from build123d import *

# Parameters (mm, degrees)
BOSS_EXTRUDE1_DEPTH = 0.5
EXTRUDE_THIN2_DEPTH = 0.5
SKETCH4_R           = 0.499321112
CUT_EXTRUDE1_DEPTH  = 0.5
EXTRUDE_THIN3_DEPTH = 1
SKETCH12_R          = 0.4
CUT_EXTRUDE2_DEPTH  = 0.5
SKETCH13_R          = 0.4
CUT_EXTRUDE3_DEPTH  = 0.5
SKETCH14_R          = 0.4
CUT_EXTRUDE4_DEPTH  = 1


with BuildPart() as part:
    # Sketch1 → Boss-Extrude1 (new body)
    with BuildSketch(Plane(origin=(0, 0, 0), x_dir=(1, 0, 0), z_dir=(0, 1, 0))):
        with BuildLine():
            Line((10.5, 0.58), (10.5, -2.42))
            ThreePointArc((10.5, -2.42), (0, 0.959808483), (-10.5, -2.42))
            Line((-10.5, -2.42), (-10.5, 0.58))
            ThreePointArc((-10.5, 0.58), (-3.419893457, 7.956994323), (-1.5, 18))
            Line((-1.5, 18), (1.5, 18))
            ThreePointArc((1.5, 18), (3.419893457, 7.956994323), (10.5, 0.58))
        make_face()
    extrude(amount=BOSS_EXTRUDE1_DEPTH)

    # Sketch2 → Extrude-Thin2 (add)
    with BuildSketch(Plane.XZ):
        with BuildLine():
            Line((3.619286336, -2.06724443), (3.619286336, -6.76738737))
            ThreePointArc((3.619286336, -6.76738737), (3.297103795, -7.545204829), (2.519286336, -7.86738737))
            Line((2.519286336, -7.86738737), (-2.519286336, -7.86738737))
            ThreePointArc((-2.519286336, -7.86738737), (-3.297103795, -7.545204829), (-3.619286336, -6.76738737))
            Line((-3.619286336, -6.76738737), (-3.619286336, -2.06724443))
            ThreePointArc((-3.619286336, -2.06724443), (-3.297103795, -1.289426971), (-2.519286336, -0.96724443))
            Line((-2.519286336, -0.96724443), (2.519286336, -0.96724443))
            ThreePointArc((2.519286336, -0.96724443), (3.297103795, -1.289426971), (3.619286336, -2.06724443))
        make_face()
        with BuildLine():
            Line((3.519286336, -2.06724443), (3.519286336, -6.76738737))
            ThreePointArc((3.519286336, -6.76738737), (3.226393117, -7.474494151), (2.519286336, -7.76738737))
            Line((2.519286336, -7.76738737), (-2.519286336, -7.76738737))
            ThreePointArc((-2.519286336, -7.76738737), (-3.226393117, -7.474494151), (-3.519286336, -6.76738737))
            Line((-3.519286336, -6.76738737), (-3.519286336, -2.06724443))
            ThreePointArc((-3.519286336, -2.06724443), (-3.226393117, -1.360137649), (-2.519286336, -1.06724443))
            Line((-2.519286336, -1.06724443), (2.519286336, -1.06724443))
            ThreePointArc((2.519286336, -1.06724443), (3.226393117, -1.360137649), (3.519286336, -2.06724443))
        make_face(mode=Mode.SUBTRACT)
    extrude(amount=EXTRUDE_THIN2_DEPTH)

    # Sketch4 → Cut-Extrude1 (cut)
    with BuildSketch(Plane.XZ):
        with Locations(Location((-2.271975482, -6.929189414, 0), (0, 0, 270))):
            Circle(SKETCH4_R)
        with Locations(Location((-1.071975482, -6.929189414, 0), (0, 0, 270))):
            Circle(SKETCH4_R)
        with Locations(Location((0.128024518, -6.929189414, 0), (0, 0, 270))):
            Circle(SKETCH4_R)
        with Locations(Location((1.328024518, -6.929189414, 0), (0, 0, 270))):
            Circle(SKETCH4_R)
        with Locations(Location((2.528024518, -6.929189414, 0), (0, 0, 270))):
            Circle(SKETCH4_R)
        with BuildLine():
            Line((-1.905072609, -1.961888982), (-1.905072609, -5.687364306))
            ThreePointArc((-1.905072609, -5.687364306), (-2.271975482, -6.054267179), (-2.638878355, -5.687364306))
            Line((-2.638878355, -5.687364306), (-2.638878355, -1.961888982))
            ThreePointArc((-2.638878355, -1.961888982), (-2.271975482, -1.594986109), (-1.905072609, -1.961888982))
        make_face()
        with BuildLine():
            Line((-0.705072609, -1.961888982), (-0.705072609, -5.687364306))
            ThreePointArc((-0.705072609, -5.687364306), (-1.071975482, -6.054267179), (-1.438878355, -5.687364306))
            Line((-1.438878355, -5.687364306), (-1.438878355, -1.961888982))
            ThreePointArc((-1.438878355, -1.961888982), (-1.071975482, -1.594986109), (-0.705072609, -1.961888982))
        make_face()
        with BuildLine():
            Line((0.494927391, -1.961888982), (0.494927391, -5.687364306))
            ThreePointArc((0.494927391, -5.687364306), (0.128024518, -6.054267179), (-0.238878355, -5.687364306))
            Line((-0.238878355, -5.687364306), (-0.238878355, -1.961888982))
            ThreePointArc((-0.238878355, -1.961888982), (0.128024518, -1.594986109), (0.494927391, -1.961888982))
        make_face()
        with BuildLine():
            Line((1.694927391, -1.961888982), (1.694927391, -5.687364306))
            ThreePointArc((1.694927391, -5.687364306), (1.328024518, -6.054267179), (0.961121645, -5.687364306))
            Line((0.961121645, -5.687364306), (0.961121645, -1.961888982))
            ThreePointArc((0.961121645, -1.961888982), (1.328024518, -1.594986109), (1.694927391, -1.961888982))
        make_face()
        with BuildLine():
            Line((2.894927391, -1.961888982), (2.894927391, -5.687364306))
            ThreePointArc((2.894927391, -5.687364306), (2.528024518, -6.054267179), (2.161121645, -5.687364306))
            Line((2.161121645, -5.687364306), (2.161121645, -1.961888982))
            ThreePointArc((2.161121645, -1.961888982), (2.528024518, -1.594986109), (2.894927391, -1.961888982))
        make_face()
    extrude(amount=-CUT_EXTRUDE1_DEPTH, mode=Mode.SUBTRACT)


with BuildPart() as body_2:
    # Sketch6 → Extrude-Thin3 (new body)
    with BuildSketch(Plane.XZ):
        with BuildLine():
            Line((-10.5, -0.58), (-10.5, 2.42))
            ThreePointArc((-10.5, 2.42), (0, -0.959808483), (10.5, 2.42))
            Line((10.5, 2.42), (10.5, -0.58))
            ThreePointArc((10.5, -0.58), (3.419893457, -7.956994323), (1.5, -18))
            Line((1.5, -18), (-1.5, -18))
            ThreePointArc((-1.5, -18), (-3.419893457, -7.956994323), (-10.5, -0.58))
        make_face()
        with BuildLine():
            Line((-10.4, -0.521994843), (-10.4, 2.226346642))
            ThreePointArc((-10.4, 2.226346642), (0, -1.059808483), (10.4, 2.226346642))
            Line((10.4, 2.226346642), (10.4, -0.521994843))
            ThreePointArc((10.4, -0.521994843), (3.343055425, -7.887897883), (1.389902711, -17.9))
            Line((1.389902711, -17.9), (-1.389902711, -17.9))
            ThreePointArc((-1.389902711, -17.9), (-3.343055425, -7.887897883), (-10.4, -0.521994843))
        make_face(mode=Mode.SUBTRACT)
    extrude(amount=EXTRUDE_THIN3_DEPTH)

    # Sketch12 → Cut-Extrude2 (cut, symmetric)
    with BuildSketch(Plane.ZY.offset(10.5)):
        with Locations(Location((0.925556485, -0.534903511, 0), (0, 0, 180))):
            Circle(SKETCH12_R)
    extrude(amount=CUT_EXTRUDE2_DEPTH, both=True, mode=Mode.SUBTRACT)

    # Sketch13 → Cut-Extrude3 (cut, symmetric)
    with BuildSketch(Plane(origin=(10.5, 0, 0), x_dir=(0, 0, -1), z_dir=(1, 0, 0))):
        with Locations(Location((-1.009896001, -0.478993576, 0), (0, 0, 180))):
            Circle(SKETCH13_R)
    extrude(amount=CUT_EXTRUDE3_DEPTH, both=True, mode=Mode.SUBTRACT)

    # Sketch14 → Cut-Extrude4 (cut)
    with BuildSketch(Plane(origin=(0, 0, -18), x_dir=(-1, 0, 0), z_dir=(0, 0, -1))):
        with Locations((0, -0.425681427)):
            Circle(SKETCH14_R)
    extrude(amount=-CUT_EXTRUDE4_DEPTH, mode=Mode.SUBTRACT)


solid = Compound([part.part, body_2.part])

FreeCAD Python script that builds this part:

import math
import FreeCAD as App
import Part
import Sketcher

doc = App.newDocument("Part")
body = doc.addObject("PartDesign::Body", "Body")

# Sketch on XZ plane
sketch1 = body.newObject("Sketcher::SketchObject", "Sketch")
sketch1.AttachmentSupport = (doc.getObject("XZ_Plane"), [""])
sketch1.MapMode = "FlatFace"
sketch1.addGeometry([
    Part.LineSegment(App.Vector(10.5, 2.4, 0), App.Vector(10.5, -0.6, 0)),  # 0
    Part.ArcOfCircle(Part.Circle(App.Vector(19.4, -16.2, 0), App.Vector(0, 0, 1), 18), math.radians(120), math.radians(186)),  # 1
    Part.LineSegment(App.Vector(1.5, -18, 0), App.Vector(-1.5, -18, 0)),  # 2
    Part.ArcOfCircle(Part.Circle(App.Vector(-19.4, -16.2, 0), App.Vector(0, 0, 1), 18), math.radians(-6), math.radians(60)),  # 3
    Part.LineSegment(App.Vector(-10.5, -0.6, 0), App.Vector(-10.5, 2.4, 0)),  # 4
    Part.ArcOfCircle(Part.Circle(App.Vector(0, 17, 0), App.Vector(0, 0, 1), 18), math.radians(-126), math.radians(-54)),  # 5
], False)
sketch1.addConstraint([
    Sketcher.Constraint("Coincident", 0, 2, 1, 1),
    Sketcher.Constraint("Coincident", 1, 2, 2, 1),
    Sketcher.Constraint("Coincident", 2, 2, 3, 1),
    Sketcher.Constraint("Coincident", 3, 2, 4, 1),
    Sketcher.Constraint("Coincident", 4, 2, 5, 1),
    Sketcher.Constraint("Coincident", 5, 2, 0, 1),
    Sketcher.Constraint("Vertical", 0),
    Sketcher.Constraint("Horizontal", 2),
    Sketcher.Constraint("Vertical", 4),
    Sketcher.Constraint("Equal", 1, 3),
    Sketcher.Constraint("Equal", 3, 5),
    Sketcher.Constraint("Symmetric", 1, 3, 3, 3, -2),
    Sketcher.Constraint("Symmetric", 4, 2, 5, 2, -2),
    Sketcher.Constraint("Equal", 2, 0),
    Sketcher.Constraint("Radius", 1, 18.0),
    Sketcher.Constraint("DistanceX", 2, 2, 2, 1, 3.0),
    Sketcher.Constraint("DistanceY", 1, 2, -1, 1, 18.0),
    Sketcher.Constraint("DistanceX", 1, 2, 0, 2, 9.0),
    Sketcher.Constraint("DistanceY", 0, 2, -1, 1, 0.58),
])
pad1 = body.newObject("PartDesign::Pad", "Pad")
pad1.Profile = sketch1
pad1.Length = 0.5
pad1.Reversed = True

# Sketch on XZ plane
sketch2 = body.newObject("Sketcher::SketchObject", "Sketch001")
sketch2.AttachmentSupport = (doc.getObject("XZ_Plane"), [""])
sketch2.MapMode = "FlatFace"
sketch2.addGeometry([
    Part.LineSegment(App.Vector(3.6, -6.8, 0), App.Vector(3.6, -2.1, 0)),  # 0
    Part.ArcOfCircle(Part.Circle(App.Vector(2.5, -2.1, 0), App.Vector(0, 0, 1), 1.1), math.radians(0), math.radians(90)),  # 1
    Part.LineSegment(App.Vector(2.5, -1, 0), App.Vector(-2.5, -1, 0)),  # 2
    Part.ArcOfCircle(Part.Circle(App.Vector(-2.5, -2.1, 0), App.Vector(0, 0, 1), 1.1), math.radians(90), math.radians(180)),  # 3
    Part.LineSegment(App.Vector(-3.6, -2.1, 0), App.Vector(-3.6, -6.8, 0)),  # 4
    Part.ArcOfCircle(Part.Circle(App.Vector(-2.5, -6.8, 0), App.Vector(0, 0, 1), 1.1), math.radians(-180), math.radians(-90)),  # 5
    Part.LineSegment(App.Vector(-2.5, -7.9, 0), App.Vector(2.5, -7.9, 0)),  # 6
    Part.ArcOfCircle(Part.Circle(App.Vector(2.5, -6.8, 0), App.Vector(0, 0, 1), 1.1), math.radians(-90), math.radians(0)),  # 7
    Part.LineSegment(App.Vector(3.5, -2.1, 0), App.Vector(3.5, -6.8, 0)),  # 8
    Part.ArcOfCircle(Part.Circle(App.Vector(2.5, -6.8, 0), App.Vector(0, 0, 1), 1), math.radians(-90), math.radians(0)),  # 9
    Part.LineSegment(App.Vector(2.5, -7.8, 0), App.Vector(-2.5, -7.8, 0)),  # 10
    Part.ArcOfCircle(Part.Circle(App.Vector(-2.5, -6.8, 0), App.Vector(0, 0, 1), 1), math.radians(-180), math.radians(-90)),  # 11
    Part.LineSegment(App.Vector(-3.5, -6.8, 0), App.Vector(-3.5, -2.1, 0)),  # 12
    Part.ArcOfCircle(Part.Circle(App.Vector(-2.5, -2.1, 0), App.Vector(0, 0, 1), 1), math.radians(90), math.radians(180)),  # 13
    Part.LineSegment(App.Vector(-2.5, -1.1, 0), App.Vector(2.5, -1.1, 0)),  # 14
    Part.ArcOfCircle(Part.Circle(App.Vector(2.5, -2.1, 0), App.Vector(0, 0, 1), 1), math.radians(0), math.radians(90)),  # 15
], False)
sketch2.addConstraint([
    Sketcher.Constraint("Tangent", 0, 2, 1, 1),
    Sketcher.Constraint("Tangent", 1, 2, 2, 1),
    Sketcher.Constraint("Tangent", 2, 2, 3, 1),
    Sketcher.Constraint("Tangent", 3, 2, 4, 1),
    Sketcher.Constraint("Tangent", 4, 2, 5, 1),
    Sketcher.Constraint("Tangent", 5, 2, 6, 1),
    Sketcher.Constraint("Tangent", 6, 2, 7, 1),
    Sketcher.Constraint("Tangent", 7, 2, 0, 1),
    Sketcher.Constraint("Tangent", 8, 2, 9, 2),
    Sketcher.Constraint("Tangent", 9, 1, 10, 1),
    Sketcher.Constraint("Tangent", 10, 2, 11, 2),
    Sketcher.Constraint("Tangent", 11, 1, 12, 1),
    Sketcher.Constraint("Tangent", 12, 2, 13, 2),
    Sketcher.Constraint("Tangent", 13, 1, 14, 1),
    Sketcher.Constraint("Tangent", 14, 2, 15, 2),
    Sketcher.Constraint("Tangent", 15, 1, 8, 1),
    Sketcher.Constraint("Vertical", 0),
    Sketcher.Constraint("Horizontal", 2),
    Sketcher.Constraint("Vertical", 4),
    Sketcher.Constraint("Horizontal", 6),
    Sketcher.Constraint("Vertical", 8),
    Sketcher.Constraint("Horizontal", 10),
    Sketcher.Constraint("Vertical", 12),
    Sketcher.Constraint("Horizontal", 14),
    Sketcher.Constraint("Coincident", 9, 3, 7, 3),
    Sketcher.Constraint("Coincident", 11, 3, 5, 3),
    Sketcher.Constraint("Coincident", 13, 3, 3, 3),
    Sketcher.Constraint("Equal", 1, 3),
    Sketcher.Constraint("Equal", 3, 5),
    Sketcher.Constraint("Equal", 5, 7),
    Sketcher.Constraint("Equal", 13, 15),
    Sketcher.Constraint("Radius", 9, 1.0),
    Sketcher.Constraint("Radius", 1, 1.1),
    Sketcher.Constraint("DistanceX", 2, 2, 2, 1, 5.038573),
    Sketcher.Constraint("DistanceY", 0, 1, 0, 2, 4.700143),
    Sketcher.Constraint("DistanceX", -1, 1, 1, 3, 2.519286),
    Sketcher.Constraint("DistanceY", 1, 3, -1, 1, 2.067244),
])
pad2 = body.newObject("PartDesign::Pad", "Pad001")
pad2.Profile = sketch2
pad2.Length = 0.5

# Sketch on XZ plane
sketch3 = body.newObject("Sketcher::SketchObject", "Sketch002")
sketch3.AttachmentSupport = (doc.getObject("XZ_Plane"), [""])
sketch3.MapMode = "FlatFace"
sketch3.addGeometry([
    Part.Circle(App.Vector(-2.27, -6.93, 0), App.Vector(0, 0, 1), 0.5),  # 0
    Part.Circle(App.Vector(-1.07, -6.93, 0), App.Vector(0, 0, 1), 0.5),  # 1
    Part.Circle(App.Vector(0.13, -6.93, 0), App.Vector(0, 0, 1), 0.5),  # 2
    Part.Circle(App.Vector(1.33, -6.93, 0), App.Vector(0, 0, 1), 0.5),  # 3
    Part.Circle(App.Vector(2.53, -6.93, 0), App.Vector(0, 0, 1), 0.5),  # 4
    Part.LineSegment(App.Vector(-1.91, -5.69, 0), App.Vector(-1.91, -1.96, 0)),  # 5
    Part.ArcOfCircle(Part.Circle(App.Vector(-2.27, -1.96, 0), App.Vector(0, 0, 1), 0.37), math.radians(0), math.radians(180)),  # 6
    Part.LineSegment(App.Vector(-2.64, -1.96, 0), App.Vector(-2.64, -5.69, 0)),  # 7
    Part.ArcOfCircle(Part.Circle(App.Vector(-2.27, -5.69, 0), App.Vector(0, 0, 1), 0.37), math.radians(180), math.radians(360)),  # 8
    Part.LineSegment(App.Vector(-0.71, -5.69, 0), App.Vector(-0.71, -1.96, 0)),  # 9
    Part.ArcOfCircle(Part.Circle(App.Vector(-1.07, -1.96, 0), App.Vector(0, 0, 1), 0.37), math.radians(0), math.radians(180)),  # 10
    Part.LineSegment(App.Vector(-1.44, -1.96, 0), App.Vector(-1.44, -5.69, 0)),  # 11
    Part.ArcOfCircle(Part.Circle(App.Vector(-1.07, -5.69, 0), App.Vector(0, 0, 1), 0.37), math.radians(180), math.radians(360)),  # 12
    Part.LineSegment(App.Vector(0.49, -5.69, 0), App.Vector(0.49, -1.96, 0)),  # 13
    Part.ArcOfCircle(Part.Circle(App.Vector(0.13, -1.96, 0), App.Vector(0, 0, 1), 0.37), math.radians(0), math.radians(180)),  # 14
    Part.LineSegment(App.Vector(-0.24, -1.96, 0), App.Vector(-0.24, -5.69, 0)),  # 15
    Part.ArcOfCircle(Part.Circle(App.Vector(0.13, -5.69, 0), App.Vector(0, 0, 1), 0.37), math.radians(180), math.radians(360)),  # 16
    Part.LineSegment(App.Vector(1.69, -5.69, 0), App.Vector(1.69, -1.96, 0)),  # 17
    Part.ArcOfCircle(Part.Circle(App.Vector(1.33, -1.96, 0), App.Vector(0, 0, 1), 0.37), math.radians(0), math.radians(180)),  # 18
    Part.LineSegment(App.Vector(0.96, -1.96, 0), App.Vector(0.96, -5.69, 0)),  # 19
    Part.ArcOfCircle(Part.Circle(App.Vector(1.33, -5.69, 0), App.Vector(0, 0, 1), 0.37), math.radians(180), math.radians(360)),  # 20
    Part.LineSegment(App.Vector(2.89, -5.69, 0), App.Vector(2.89, -1.96, 0)),  # 21
    Part.ArcOfCircle(Part.Circle(App.Vector(2.53, -1.96, 0), App.Vector(0, 0, 1), 0.37), math.radians(0), math.radians(180)),  # 22
    Part.LineSegment(App.Vector(2.16, -1.96, 0), App.Vector(2.16, -5.69, 0)),  # 23
    Part.ArcOfCircle(Part.Circle(App.Vector(2.53, -5.69, 0), App.Vector(0, 0, 1), 0.37), math.radians(180), math.radians(360)),  # 24
], False)
sketch3.addConstraint([
    Sketcher.Constraint("Tangent", 5, 2, 6, 1),
    Sketcher.Constraint("Tangent", 6, 2, 7, 1),
    Sketcher.Constraint("Tangent", 7, 2, 8, 1),
    Sketcher.Constraint("Tangent", 8, 2, 5, 1),
    Sketcher.Constraint("Tangent", 9, 2, 10, 1),
    Sketcher.Constraint("Tangent", 10, 2, 11, 1),
    Sketcher.Constraint("Tangent", 11, 2, 12, 1),
    Sketcher.Constraint("Tangent", 12, 2, 9, 1),
    Sketcher.Constraint("Tangent", 13, 2, 14, 1),
    Sketcher.Constraint("Tangent", 14, 2, 15, 1),
    Sketcher.Constraint("Tangent", 15, 2, 16, 1),
    Sketcher.Constraint("Tangent", 16, 2, 13, 1),
    Sketcher.Constraint("Tangent", 17, 2, 18, 1),
    Sketcher.Constraint("Tangent", 18, 2, 19, 1),
    Sketcher.Constraint("Tangent", 19, 2, 20, 1),
    Sketcher.Constraint("Tangent", 20, 2, 17, 1),
    Sketcher.Constraint("Tangent", 21, 2, 22, 1),
    Sketcher.Constraint("Tangent", 22, 2, 23, 1),
    Sketcher.Constraint("Tangent", 23, 2, 24, 1),
    Sketcher.Constraint("Tangent", 24, 2, 21, 1),
    Sketcher.Constraint("Vertical", 5),
    Sketcher.Constraint("Vertical", 7),
    Sketcher.Constraint("Vertical", 9),
    Sketcher.Constraint("Vertical", 11),
    Sketcher.Constraint("Vertical", 13),
    Sketcher.Constraint("Vertical", 15),
    Sketcher.Constraint("Vertical", 17),
    Sketcher.Constraint("Vertical", 19),
    Sketcher.Constraint("Vertical", 21),
    Sketcher.Constraint("Vertical", 23),
    Sketcher.Constraint("Equal", 0, 1),
    Sketcher.Constraint("Equal", 1, 2),
    Sketcher.Constraint("Equal", 2, 3),
    Sketcher.Constraint("Equal", 3, 4),
    Sketcher.Constraint("Equal", 8, 10),
    Sketcher.Constraint("Equal", 12, 14),
    Sketcher.Constraint("Equal", 16, 18),
    Sketcher.Constraint("Equal", 20, 22),
    Sketcher.Constraint("Horizontal", 0, 3, 1, 3),
    Sketcher.Constraint("Horizontal", 1, 3, 2, 3),
    Sketcher.Constraint("Horizontal", 2, 3, 3, 3),
    Sketcher.Constraint("Horizontal", 3, 3, 4, 3),
    Sketcher.Constraint("Horizontal", 6, 3, 10, 3),
    Sketcher.Constraint("Horizontal", 8, 3, 12, 3),
    Sketcher.Constraint("Horizontal", 10, 3, 14, 3),
    Sketcher.Constraint("Horizontal", 12, 3, 16, 3),
    Sketcher.Constraint("Horizontal", 14, 3, 18, 3),
    Sketcher.Constraint("Horizontal", 16, 3, 20, 3),
    Sketcher.Constraint("Horizontal", 18, 3, 22, 3),
    Sketcher.Constraint("Horizontal", 20, 3, 24, 3),
    Sketcher.Constraint("Vertical", 0, 3, 6, 3),
    Sketcher.Constraint("Vertical", 1, 3, 10, 3),
    Sketcher.Constraint("Vertical", 2, 3, 14, 3),
    Sketcher.Constraint("Vertical", 3, 3, 18, 3),
    Sketcher.Constraint("Vertical", 4, 3, 22, 3),
    Sketcher.Constraint("DistanceX", 0, 3, 1, 3, 1.2),
    Sketcher.Constraint("DistanceX", 1, 3, 2, 3, 1.2),
    Sketcher.Constraint("DistanceX", 2, 3, 3, 3, 1.2),
    Sketcher.Constraint("DistanceX", 3, 3, 4, 3, 1.2),
    Sketcher.Constraint("Diameter", 0, 0.998642),
    Sketcher.Constraint("Radius", 6, 0.366903),
    Sketcher.Constraint("DistanceY", 0, 3, 6, 3, 4.9673),
    Sketcher.Constraint("DistanceY", 5, 1, 5, 2, 3.725475),
    Sketcher.Constraint("DistanceY", 0, 3, -1, 1, 6.929189),
    Sketcher.Constraint("DistanceX", 6, 2, -1, 1, 2.638878),
])
pocket1 = body.newObject("PartDesign::Pocket", "Pocket")
pocket1.Profile = sketch3
pocket1.Length = 0.5
body2 = doc.addObject("PartDesign::Body", "Body001")

# Sketch on XZ plane
sketch4 = body2.newObject("Sketcher::SketchObject", "Sketch003")
sketch4.AttachmentSupport = (doc.getObject("XZ_Plane001"), [""])
sketch4.MapMode = "FlatFace"
sketch4.addGeometry([
    Part.LineSegment(App.Vector(-10.5, 2.4, 0), App.Vector(-10.5, -0.6, 0)),  # 0
    Part.ArcOfCircle(Part.Circle(App.Vector(-19.4, -16.2, 0), App.Vector(0, 0, 1), 18), math.radians(-6), math.radians(60)),  # 1
    Part.LineSegment(App.Vector(-1.5, -18, 0), App.Vector(1.5, -18, 0)),  # 2
    Part.ArcOfCircle(Part.Circle(App.Vector(19.4, -16.2, 0), App.Vector(0, 0, 1), 18), math.radians(120), math.radians(186)),  # 3
    Part.LineSegment(App.Vector(10.5, -0.6, 0), App.Vector(10.5, 2.4, 0)),  # 4
    Part.ArcOfCircle(Part.Circle(App.Vector(0, 17, 0), App.Vector(0, 0, 1), 18), math.radians(-126), math.radians(-54)),  # 5
    Part.LineSegment(App.Vector(-10.4, -0.5, 0), App.Vector(-10.4, 2.2, 0)),  # 6
    Part.ArcOfCircle(Part.Circle(App.Vector(0, 17, 0), App.Vector(0, 0, 1), 18.1), math.radians(-125), math.radians(-55)),  # 7
    Part.LineSegment(App.Vector(10.4, 2.2, 0), App.Vector(10.4, -0.5, 0)),  # 8
    Part.ArcOfCircle(Part.Circle(App.Vector(19.4, -16.2, 0), App.Vector(0, 0, 1), 18.1), math.radians(120), math.radians(185)),  # 9
    Part.LineSegment(App.Vector(1.4, -17.9, 0), App.Vector(-1.4, -17.9, 0)),  # 10
    Part.ArcOfCircle(Part.Circle(App.Vector(-19.4, -16.2, 0), App.Vector(0, 0, 1), 18.1), math.radians(-5), math.radians(60)),  # 11
], False)
sketch4.addConstraint([
    Sketcher.Constraint("Coincident", 0, 2, 1, 2),
    Sketcher.Constraint("Coincident", 1, 1, 2, 1),
    Sketcher.Constraint("Coincident", 2, 2, 3, 2),
    Sketcher.Constraint("Coincident", 3, 1, 4, 1),
    Sketcher.Constraint("Coincident", 4, 2, 5, 2),
    Sketcher.Constraint("Coincident", 5, 1, 0, 1),
    Sketcher.Constraint("Coincident", 6, 2, 7, 1),
    Sketcher.Constraint("Coincident", 7, 2, 8, 1),
    Sketcher.Constraint("Coincident", 8, 2, 9, 1),
    Sketcher.Constraint("Coincident", 9, 2, 10, 1),
    Sketcher.Constraint("Coincident", 10, 2, 11, 1),
    Sketcher.Constraint("Coincident", 11, 2, 6, 1),
    Sketcher.Constraint("Vertical", 0),
    Sketcher.Constraint("Horizontal", 2),
    Sketcher.Constraint("Vertical", 4),
    Sketcher.Constraint("Vertical", 6),
    Sketcher.Constraint("Vertical", 8),
    Sketcher.Constraint("Horizontal", 10),
    Sketcher.Constraint("Coincident", 7, 3, 5, 3),
    Sketcher.Constraint("Coincident", 9, 3, 3, 3),
    Sketcher.Constraint("Coincident", 11, 3, 1, 3),
    Sketcher.Constraint("Equal", 1, 3),
    Sketcher.Constraint("Equal", 3, 5),
    Sketcher.Constraint("Equal", 7, 9),
    Sketcher.Constraint("Equal", 9, 11),
    Sketcher.Constraint("Symmetric", 1, 3, 3, 3, -2),
    Sketcher.Constraint("Symmetric", 4, 2, 5, 1, -2),
    Sketcher.Constraint("Horizontal", 6, 2, 7, 2),
    Sketcher.Constraint("Equal", 2, 0),
    Sketcher.Constraint("Radius", 1, 18.0),
    Sketcher.Constraint("Radius", 7, 18.1),
    Sketcher.Constraint("DistanceX", 2, 1, 2, 2, 3.0),
    Sketcher.Constraint("DistanceY", 1, 1, -1, 1, 18.0),
    Sketcher.Constraint("DistanceX", 0, 2, 1, 1, 9.0),
    Sketcher.Constraint("DistanceX", 6, 2, -1, 1, 10.4),
    Sketcher.Constraint("DistanceY", 9, 2, -1, 1, 17.9),
    Sketcher.Constraint("DistanceY", 0, 2, -1, 1, 0.58),
])
pad3 = body2.newObject("PartDesign::Pad", "Pad002")
pad3.Profile = sketch4
pad3.Length = 1

# Sketch on YZ plane
sketch5 = body2.newObject("Sketcher::SketchObject", "Sketch004")
sketch5.AttachmentSupport = (doc.getObject("YZ_Plane001"), [""])
sketch5.MapMode = "FlatFace"
sketch5.AttachmentOffset = App.Placement(App.Vector(0, 0, -10.5), App.Rotation())
sketch5.addGeometry(Part.Circle(App.Vector(-0.53, 0.93, 0), App.Vector(0, 0, 1), 0.4), False)
sketch5.addConstraint([
    Sketcher.Constraint("Diameter", 0, 0.8),
    Sketcher.Constraint("DistanceX", 0, 3, -1, 1, 0.534904),
    Sketcher.Constraint("DistanceY", -1, 1, 0, 3, 0.925556),
])
pocket2 = body2.newObject("PartDesign::Pocket", "Pocket001")
pocket2.Profile = sketch5
pocket2.Length = 1
pocket2.Midplane = True

# Sketch on YZ plane
sketch6 = body2.newObject("Sketcher::SketchObject", "Sketch005")
sketch6.AttachmentSupport = (doc.getObject("YZ_Plane001"), [""])
sketch6.MapMode = "FlatFace"
sketch6.AttachmentOffset = App.Placement(App.Vector(0, 0, 10.5), App.Rotation())
sketch6.addGeometry(Part.Circle(App.Vector(-0.48, 1.01, 0), App.Vector(0, 0, 1), 0.4), False)
sketch6.addConstraint([
    Sketcher.Constraint("Diameter", 0, 0.8),
    Sketcher.Constraint("DistanceX", 0, 3, -1, 1, 0.478994),
    Sketcher.Constraint("DistanceY", -1, 1, 0, 3, 1.009896),
])
pocket3 = body2.newObject("PartDesign::Pocket", "Pocket002")
pocket3.Profile = sketch6
pocket3.Length = 1
pocket3.Midplane = True

# Sketch on XY plane
sketch7 = body2.newObject("Sketcher::SketchObject", "Sketch006")
sketch7.AttachmentSupport = (doc.getObject("XY_Plane001"), [""])
sketch7.MapMode = "FlatFace"
sketch7.AttachmentOffset = App.Placement(App.Vector(0, 0, -18), App.Rotation())
sketch7.addGeometry(Part.Circle(App.Vector(0, -0.43, 0), App.Vector(0, 0, 1), 0.4), False)
sketch7.addConstraint([
    Sketcher.Constraint("PointOnObject", 0, 3, -2),
    Sketcher.Constraint("Diameter", 0, 0.8),
    Sketcher.Constraint("DistanceY", 0, 3, -1, 1, 0.425681),
])
pocket4 = body2.newObject("PartDesign::Pocket", "Pocket003")
pocket4.Profile = sketch7
pocket4.Length = 1
pocket4.Reversed = True

doc.recompute()
